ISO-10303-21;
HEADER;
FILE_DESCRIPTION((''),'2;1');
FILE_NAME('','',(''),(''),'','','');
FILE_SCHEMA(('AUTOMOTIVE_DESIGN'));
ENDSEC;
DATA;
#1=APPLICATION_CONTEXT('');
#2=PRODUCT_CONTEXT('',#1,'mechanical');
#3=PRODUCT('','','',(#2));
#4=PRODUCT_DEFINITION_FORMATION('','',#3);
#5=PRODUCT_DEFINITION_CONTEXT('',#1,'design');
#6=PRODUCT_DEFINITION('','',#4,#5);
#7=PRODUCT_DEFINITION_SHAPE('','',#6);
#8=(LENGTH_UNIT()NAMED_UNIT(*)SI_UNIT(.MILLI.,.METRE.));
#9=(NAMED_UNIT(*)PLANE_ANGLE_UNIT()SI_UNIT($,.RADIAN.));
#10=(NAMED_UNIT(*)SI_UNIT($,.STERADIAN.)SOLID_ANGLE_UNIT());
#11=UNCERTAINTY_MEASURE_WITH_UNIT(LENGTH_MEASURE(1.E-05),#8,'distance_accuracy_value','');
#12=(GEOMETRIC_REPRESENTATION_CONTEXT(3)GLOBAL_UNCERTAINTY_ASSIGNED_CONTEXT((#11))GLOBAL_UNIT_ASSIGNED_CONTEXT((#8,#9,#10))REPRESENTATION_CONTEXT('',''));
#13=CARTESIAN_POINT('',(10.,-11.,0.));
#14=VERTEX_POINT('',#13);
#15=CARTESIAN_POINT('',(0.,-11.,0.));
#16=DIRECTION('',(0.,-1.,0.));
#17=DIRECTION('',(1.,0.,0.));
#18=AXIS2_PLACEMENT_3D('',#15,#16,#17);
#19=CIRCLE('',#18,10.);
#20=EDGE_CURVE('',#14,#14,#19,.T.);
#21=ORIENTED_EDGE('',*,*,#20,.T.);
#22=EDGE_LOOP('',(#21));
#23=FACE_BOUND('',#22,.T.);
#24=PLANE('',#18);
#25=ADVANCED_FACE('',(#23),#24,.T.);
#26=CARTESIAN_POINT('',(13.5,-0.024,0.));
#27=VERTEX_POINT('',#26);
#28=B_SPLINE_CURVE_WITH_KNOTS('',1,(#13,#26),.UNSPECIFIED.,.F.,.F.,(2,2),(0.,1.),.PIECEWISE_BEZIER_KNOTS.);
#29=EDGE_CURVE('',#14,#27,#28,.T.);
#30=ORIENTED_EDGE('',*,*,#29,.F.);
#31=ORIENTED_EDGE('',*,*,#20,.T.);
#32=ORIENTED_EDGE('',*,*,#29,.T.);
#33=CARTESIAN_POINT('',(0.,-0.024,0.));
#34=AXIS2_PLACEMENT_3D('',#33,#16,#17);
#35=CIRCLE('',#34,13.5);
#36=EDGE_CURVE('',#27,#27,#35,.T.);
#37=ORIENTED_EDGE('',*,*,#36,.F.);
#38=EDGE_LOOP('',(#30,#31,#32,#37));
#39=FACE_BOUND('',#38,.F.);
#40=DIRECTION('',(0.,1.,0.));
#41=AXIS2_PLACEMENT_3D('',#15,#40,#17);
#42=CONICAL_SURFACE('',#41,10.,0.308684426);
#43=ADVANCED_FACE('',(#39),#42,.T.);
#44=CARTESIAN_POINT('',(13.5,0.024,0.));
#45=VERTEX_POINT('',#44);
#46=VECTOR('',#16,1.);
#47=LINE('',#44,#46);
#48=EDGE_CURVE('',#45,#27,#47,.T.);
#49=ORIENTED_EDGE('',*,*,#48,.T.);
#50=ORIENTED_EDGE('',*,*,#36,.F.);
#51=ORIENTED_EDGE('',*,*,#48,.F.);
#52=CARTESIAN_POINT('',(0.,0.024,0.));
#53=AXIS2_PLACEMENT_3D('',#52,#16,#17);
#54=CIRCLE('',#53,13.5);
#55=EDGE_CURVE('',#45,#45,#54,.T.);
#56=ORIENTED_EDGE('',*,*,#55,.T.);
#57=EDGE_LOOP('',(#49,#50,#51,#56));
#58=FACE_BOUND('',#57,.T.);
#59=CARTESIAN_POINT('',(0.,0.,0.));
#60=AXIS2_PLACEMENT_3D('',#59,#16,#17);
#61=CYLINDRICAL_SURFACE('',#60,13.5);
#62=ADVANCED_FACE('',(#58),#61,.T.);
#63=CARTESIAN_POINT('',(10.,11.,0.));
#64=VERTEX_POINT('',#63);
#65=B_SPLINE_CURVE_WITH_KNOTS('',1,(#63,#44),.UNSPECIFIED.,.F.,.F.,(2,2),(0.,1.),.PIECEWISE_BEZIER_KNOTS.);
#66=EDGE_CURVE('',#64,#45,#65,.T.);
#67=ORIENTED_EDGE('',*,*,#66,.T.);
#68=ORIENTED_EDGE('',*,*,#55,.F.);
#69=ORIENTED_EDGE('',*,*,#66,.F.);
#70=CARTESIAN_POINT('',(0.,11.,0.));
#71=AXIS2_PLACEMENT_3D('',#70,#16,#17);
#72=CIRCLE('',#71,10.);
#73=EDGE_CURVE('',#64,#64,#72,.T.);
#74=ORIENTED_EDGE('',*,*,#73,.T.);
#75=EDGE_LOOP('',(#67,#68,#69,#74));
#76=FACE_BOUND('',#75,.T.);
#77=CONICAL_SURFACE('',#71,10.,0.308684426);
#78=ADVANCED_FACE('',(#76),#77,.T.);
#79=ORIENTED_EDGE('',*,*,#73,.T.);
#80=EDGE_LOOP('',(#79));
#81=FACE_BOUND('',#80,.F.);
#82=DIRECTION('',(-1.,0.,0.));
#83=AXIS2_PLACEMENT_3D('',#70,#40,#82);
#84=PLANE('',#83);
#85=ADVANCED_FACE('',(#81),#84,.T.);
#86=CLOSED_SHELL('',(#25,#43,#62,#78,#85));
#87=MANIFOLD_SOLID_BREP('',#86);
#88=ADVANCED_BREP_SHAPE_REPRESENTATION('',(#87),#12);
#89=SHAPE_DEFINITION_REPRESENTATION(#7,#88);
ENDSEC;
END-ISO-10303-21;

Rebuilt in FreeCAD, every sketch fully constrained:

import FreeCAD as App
import Part
import Sketcher
from FreeCAD import Vector
Q = App.Units.Quantity

doc = App.newDocument("Part")
body = doc.addObject("PartDesign::Body", "Body")

sketch1 = body.newObject("Sketcher::SketchObject", "Sketch")
sketch1.AttachmentSupport = (doc.getObject("XZ_Plane"), [""])
sketch1.MapMode = "FlatFace"
sketch1.addGeometry(Part.Circle(Vector(0, 0, 0), Vector(0, 0, 1), 13.5), False)
sketch1.addConstraint(Sketcher.Constraint("Coincident", 0, 3, -1, 1))
sketch1.addConstraint(Sketcher.Constraint("Diameter", 0, Q("27 mm")))
pad1 = body.newObject("PartDesign::Pad", "Pad")
pad1.Profile = sketch1
pad1.Length = 0.024

sketch2 = body.newObject("Sketcher::SketchObject", "Sketch001")
sketch2.AttachmentSupport = (doc.getObject("XZ_Plane"), [""])
sketch2.MapMode = "FlatFace"
sketch2.AttachmentOffset = App.Placement(Vector(0, 0, 11), App.Rotation())
sketch2.addGeometry(Part.Circle(Vector(0, 0, 0), Vector(0, 0, 1), 10), False)
sketch2.addConstraint(Sketcher.Constraint("Coincident", 0, 3, -1, 1))
sketch2.addConstraint(Sketcher.Constraint("Diameter", 0, Q("20 mm")))

sketch3 = body.newObject("Sketcher::SketchObject", "Sketch002")
sketch3.AttachmentSupport = (doc.getObject("XZ_Plane"), [""])
sketch3.MapMode = "FlatFace"
sketch3.AttachmentOffset = App.Placement(Vector(0, 0, 0.024), App.Rotation())
sketch3.addGeometry(Part.Circle(Vector(0, 0, 0), Vector(0, 0, 1), 13.5), False)
sketch3.addConstraint(Sketcher.Constraint("Coincident", 0, 3, -1, 1))
sketch3.addConstraint(Sketcher.Constraint("Diameter", 0, Q("27 mm")))

additiveloft = body.newObject("PartDesign::AdditiveLoft", "AdditiveLoft")
additiveloft.Profile = sketch2
additiveloft.Sections = [sketch3]
body2 = doc.addObject("PartDesign::Body", "Body001")
doc.recompute()

body2.BaseFeature = body
doc.recompute()

mirroring = doc.addObject("Part::Mirroring", "Mirroring")
mirroring.Source = body
mirroring.Base = Vector(0, 0, 0)
mirroring.Normal = Vector(0, -1, 0)
body3 = doc.addObject("PartDesign::Body", "Body002")
body3.BaseFeature = mirroring
boolean = body2.newObject("PartDesign::Boolean", "Boolean")
boolean.Type = "Fuse"
boolean.addObjects([body3])
doc.recompute()
mirroring.Visibility = False

doc.recompute()
